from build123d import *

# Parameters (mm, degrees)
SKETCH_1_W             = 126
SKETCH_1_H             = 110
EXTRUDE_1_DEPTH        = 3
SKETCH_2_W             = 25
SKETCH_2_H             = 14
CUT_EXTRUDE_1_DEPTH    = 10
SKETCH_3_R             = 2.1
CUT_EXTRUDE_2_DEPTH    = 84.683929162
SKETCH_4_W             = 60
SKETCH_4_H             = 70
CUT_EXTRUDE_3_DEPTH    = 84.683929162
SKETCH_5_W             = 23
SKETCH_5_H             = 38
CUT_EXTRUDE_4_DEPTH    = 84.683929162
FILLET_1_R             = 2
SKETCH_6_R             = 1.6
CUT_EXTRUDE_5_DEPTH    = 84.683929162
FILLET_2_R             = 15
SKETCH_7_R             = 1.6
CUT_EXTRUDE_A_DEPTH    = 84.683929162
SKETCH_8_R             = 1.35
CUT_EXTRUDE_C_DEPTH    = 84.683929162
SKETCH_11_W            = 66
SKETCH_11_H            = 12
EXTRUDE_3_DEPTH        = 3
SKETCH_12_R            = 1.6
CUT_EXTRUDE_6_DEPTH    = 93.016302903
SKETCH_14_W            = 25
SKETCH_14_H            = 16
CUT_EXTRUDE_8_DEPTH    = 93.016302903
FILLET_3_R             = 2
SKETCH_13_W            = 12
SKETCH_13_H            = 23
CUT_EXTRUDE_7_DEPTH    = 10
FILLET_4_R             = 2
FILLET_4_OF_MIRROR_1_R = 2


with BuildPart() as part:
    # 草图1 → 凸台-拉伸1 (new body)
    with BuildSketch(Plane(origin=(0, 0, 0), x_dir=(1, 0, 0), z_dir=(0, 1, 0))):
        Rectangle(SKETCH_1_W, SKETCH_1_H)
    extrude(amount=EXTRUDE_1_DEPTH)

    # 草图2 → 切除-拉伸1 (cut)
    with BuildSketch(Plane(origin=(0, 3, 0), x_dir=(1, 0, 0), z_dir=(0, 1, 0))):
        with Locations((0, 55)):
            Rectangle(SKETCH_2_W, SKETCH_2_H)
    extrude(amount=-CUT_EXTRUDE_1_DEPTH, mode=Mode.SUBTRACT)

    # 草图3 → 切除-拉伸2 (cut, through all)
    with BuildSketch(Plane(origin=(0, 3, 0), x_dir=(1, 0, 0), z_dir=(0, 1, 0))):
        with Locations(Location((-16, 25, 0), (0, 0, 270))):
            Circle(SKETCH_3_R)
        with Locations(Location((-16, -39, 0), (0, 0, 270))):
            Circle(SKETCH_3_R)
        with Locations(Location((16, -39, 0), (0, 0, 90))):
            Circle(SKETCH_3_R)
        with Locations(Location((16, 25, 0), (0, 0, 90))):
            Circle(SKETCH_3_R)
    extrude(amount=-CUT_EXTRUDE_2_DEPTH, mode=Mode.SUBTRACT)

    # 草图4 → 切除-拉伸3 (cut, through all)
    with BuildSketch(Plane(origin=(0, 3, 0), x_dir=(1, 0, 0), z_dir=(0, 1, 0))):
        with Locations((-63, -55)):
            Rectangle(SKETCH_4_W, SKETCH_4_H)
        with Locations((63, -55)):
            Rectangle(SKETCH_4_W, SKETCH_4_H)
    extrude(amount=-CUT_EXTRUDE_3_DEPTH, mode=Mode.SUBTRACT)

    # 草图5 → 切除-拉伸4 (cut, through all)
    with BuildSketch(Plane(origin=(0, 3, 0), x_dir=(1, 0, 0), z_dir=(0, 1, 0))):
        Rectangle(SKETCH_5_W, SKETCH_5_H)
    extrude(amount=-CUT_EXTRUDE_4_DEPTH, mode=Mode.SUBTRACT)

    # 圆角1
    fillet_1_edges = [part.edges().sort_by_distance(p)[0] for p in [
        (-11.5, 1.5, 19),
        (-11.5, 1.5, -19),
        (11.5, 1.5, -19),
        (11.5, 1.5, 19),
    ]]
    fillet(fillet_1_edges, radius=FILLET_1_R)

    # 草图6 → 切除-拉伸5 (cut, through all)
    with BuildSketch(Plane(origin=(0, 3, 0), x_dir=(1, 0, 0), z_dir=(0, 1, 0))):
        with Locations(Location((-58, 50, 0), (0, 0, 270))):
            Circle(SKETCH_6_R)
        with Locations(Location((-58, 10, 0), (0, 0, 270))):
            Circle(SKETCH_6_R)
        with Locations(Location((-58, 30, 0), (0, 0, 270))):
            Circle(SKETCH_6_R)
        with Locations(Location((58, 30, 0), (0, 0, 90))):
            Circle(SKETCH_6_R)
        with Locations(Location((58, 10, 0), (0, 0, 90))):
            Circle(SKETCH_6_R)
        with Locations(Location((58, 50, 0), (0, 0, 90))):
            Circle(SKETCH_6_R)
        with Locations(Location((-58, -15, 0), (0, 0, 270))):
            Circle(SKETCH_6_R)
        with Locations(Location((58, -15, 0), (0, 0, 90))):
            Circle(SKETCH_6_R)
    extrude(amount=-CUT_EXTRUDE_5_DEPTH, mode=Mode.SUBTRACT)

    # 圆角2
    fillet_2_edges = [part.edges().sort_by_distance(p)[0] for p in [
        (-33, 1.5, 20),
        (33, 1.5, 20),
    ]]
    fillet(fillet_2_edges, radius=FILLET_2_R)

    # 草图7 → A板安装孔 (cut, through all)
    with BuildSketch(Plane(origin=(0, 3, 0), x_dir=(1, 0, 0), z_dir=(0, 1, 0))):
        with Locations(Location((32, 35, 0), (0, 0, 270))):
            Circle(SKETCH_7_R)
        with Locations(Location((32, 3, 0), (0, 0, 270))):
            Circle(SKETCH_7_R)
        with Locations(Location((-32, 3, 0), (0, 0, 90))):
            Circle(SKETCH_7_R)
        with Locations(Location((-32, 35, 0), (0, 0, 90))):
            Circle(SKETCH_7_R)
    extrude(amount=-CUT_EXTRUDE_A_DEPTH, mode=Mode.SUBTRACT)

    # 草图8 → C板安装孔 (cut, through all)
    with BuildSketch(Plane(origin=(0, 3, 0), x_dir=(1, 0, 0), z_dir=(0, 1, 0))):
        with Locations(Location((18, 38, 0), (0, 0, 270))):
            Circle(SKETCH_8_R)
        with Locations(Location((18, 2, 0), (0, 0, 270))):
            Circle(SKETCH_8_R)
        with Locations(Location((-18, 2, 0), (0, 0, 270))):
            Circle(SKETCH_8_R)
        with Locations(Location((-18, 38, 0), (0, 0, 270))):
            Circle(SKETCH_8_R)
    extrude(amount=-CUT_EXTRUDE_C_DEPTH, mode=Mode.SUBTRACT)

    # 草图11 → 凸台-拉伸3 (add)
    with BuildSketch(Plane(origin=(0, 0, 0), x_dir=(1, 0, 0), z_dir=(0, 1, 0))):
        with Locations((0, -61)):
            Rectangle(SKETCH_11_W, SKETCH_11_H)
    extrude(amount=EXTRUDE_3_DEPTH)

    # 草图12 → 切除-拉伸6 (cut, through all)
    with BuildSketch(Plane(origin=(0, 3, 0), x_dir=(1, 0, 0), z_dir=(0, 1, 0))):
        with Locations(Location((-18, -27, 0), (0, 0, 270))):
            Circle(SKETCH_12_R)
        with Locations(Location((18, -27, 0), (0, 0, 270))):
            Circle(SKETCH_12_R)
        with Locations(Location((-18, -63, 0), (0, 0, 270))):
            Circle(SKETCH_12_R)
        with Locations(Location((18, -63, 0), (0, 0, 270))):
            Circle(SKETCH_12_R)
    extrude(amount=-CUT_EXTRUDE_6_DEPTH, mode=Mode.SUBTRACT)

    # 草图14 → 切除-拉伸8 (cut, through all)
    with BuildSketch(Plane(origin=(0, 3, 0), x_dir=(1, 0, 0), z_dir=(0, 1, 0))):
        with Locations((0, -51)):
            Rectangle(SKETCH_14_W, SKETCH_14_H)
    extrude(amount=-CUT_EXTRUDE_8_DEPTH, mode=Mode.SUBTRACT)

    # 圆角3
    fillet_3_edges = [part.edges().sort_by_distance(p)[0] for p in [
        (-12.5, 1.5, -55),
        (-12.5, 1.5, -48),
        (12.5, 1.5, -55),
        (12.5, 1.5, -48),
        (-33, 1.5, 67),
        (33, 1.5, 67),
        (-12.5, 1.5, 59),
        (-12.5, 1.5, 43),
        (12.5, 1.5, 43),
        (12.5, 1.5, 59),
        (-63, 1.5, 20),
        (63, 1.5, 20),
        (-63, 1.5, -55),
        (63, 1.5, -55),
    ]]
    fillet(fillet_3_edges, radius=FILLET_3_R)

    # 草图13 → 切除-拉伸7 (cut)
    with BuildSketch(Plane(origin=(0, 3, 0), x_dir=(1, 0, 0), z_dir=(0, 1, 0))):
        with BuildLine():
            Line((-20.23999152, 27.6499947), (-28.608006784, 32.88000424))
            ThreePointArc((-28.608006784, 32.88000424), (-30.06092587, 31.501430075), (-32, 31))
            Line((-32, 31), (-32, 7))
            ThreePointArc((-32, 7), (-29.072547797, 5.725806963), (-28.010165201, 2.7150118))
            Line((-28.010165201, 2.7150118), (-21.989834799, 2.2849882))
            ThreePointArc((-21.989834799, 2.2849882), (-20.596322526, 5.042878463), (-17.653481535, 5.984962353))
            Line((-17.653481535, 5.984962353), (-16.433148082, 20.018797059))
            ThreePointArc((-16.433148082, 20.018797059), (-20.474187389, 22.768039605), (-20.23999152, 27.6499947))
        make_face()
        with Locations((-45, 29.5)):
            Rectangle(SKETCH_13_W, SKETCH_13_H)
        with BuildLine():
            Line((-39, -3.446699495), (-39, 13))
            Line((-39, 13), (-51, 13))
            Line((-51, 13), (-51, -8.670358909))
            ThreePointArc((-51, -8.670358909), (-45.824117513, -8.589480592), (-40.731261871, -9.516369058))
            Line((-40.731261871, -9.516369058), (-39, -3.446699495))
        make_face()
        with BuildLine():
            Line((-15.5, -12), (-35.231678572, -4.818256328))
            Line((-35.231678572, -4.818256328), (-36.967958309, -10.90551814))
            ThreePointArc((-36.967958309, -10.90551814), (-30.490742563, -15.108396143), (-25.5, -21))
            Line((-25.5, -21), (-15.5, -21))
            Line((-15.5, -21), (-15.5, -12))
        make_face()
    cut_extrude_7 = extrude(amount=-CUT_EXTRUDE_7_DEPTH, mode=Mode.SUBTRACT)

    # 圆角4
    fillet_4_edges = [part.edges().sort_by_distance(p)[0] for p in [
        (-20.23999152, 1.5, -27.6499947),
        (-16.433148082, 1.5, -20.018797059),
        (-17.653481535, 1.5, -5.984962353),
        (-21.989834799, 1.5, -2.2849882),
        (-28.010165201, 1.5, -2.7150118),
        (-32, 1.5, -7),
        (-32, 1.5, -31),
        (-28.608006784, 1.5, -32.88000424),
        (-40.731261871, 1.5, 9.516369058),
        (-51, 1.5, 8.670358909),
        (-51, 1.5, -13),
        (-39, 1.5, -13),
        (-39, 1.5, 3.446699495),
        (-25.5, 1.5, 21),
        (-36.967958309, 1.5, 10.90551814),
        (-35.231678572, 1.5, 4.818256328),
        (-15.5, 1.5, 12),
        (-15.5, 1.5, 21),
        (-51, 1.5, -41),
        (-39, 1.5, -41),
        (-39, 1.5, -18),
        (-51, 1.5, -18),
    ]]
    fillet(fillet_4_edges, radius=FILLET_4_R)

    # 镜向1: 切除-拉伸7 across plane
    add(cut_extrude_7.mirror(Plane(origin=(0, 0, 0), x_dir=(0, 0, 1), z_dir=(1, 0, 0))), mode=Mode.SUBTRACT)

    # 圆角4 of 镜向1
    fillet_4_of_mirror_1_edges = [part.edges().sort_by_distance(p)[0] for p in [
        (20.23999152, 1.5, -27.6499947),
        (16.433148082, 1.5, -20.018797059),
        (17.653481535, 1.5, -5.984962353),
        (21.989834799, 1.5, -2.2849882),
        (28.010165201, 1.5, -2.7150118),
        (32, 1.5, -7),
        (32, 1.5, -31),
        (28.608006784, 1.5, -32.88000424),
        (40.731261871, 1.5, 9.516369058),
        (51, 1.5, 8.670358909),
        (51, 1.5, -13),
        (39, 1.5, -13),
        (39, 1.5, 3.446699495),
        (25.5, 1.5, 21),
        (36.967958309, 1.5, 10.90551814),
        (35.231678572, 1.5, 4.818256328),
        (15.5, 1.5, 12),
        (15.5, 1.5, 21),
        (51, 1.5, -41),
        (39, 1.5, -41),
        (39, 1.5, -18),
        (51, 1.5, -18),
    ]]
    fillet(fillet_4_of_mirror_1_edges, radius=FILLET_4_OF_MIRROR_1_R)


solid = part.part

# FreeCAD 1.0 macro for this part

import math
import FreeCAD as App
import Part
import Sketcher
Q = App.Units.Quantity


def edges_at(feature, points):
    """Names of the edges that pass closest to the given points."""
    edges = feature.Shape.Edges
    near = lambda p: min(range(len(edges)), key=lambda i: edges[i].distToShape(Part.Vertex(*p))[0])
    return sorted({f"Edge{near(p) + 1}" for p in points})

doc = App.newDocument("Part")
params = doc.addObject("Spreadsheet::Sheet", "Params")
for row, (alias, value) in enumerate([
    ("sketch1_width", "126 mm"),
    ("sketch1_height", "110 mm"),
    ("pad1_length", "3 mm"),
    ("sketch2_width", "25 mm"),
    ("sketch2_height", "14 mm"),
    ("pocket1_length", "10 mm"),
    ("sketch3_diameter", "4.2 mm"),
    ("sketch4_width", "60 mm"),
    ("sketch4_height", "70 mm"),
    ("sketch5_width", "23 mm"),
    ("sketch5_height", "38 mm"),
    ("fillet_radius", "2 mm"),
    ("sketch6_diameter", "3.2 mm"),
    ("fillet2_radius", "15 mm"),
    ("sketch7_diameter", "3.2 mm"),
    ("sketch8_diameter", "2.7 mm"),
    ("sketch9_width", "66 mm"),
    ("sketch9_height", "12 mm"),
    ("pad2_length", "3 mm"),
    ("sketch10_diameter", "3.2 mm"),
    ("sketch11_width", "25 mm"),
    ("sketch11_height", "16 mm"),
    ("fillet3_radius", "2 mm"),
    ("sketch12_radius", "4 mm"),
    ("sketch12_radius2", "5 mm"),
    ("sketch12_radius3", "26.5 mm"),
    ("sketch12_width", "12 mm"),
    ("sketch12_width2", "10 mm"),
    ("pocket10_length", "10 mm"),
    ("fillet4_radius", "2 mm"),
    ("fillet5_radius", "2 mm"),
], start=1):
    params.set(f"A{row}", alias)
    params.set(f"B{row}", "=" + value)
    params.setAlias(f"B{row}", alias)

body = doc.addObject("PartDesign::Body", "Body")

# Sketch on XZ plane
sketch1 = doc.addObject("Sketcher::SketchObject", "Sketch")
body.addObject(sketch1)
sketch1.AttachmentSupport = (doc.XZ_Plane, [""])
sketch1.MapMode = "FlatFace"
sketch1.addGeometry([
    Part.LineSegment(App.Vector(-63, -55, 0), App.Vector(-63, 55, 0)),
    Part.LineSegment(App.Vector(-63, 55, 0), App.Vector(63, 55, 0)),
    Part.LineSegment(App.Vector(63, 55, 0), App.Vector(63, -55, 0)),
    Part.LineSegment(App.Vector(63, -55, 0), App.Vector(-63, -55, 0)),
], False)
sketch1.addConstraint([
    Sketcher.Constraint("Coincident", 0, 2, 1, 1),
    Sketcher.Constraint("Coincident", 1, 2, 2, 1),
    Sketcher.Constraint("Coincident", 2, 2, 3, 1),
    Sketcher.Constraint("Coincident", 3, 2, 0, 1),
    Sketcher.Constraint("Vertical", 0),
    Sketcher.Constraint("Horizontal", 1),
    Sketcher.Constraint("Vertical", 2),
    Sketcher.Constraint("Horizontal", 3),
    Sketcher.Constraint("Symmetric", 0, 2, 2, 2, -1, 1),
    Sketcher.Constraint("DistanceX", 1, 1, 1, 2, 126.0),
    Sketcher.Constraint("DistanceY", 0, 1, 0, 2, 110.0),
])
sketch1.setExpression("Constraints[9]", "Params.sketch1_width")
sketch1.setExpression("Constraints[10]", "Params.sketch1_height")
pad1 = doc.addObject("PartDesign::Pad", "Pad")
body.addObject(pad1)
pad1.Profile = sketch1
pad1.setExpression("Length", "Params.pad1_length")
pad1.Reversed = True

# Sketch on XZ plane
sketch2 = doc.addObject("Sketcher::SketchObject", "Sketch001")
body.addObject(sketch2)
sketch2.AttachmentSupport = (doc.XZ_Plane, [""])
sketch2.MapMode = "FlatFace"
sketch2.AttachmentOffset = App.Placement(App.Vector(0, 0, -3), App.Rotation())
sketch2.addGeometry([
    Part.LineSegment(App.Vector(-12, -62, 0), App.Vector(-12, -48, 0)),
    Part.LineSegment(App.Vector(-12, -48, 0), App.Vector(12, -48, 0)),
    Part.LineSegment(App.Vector(12, -48, 0), App.Vector(12, -62, 0)),
    Part.LineSegment(App.Vector(12, -62, 0), App.Vector(-12, -62, 0)),
], False)
sketch2.addConstraint([
    Sketcher.Constraint("Coincident", 0, 2, 1, 1),
    Sketcher.Constraint("Coincident", 1, 2, 2, 1),
    Sketcher.Constraint("Coincident", 2, 2, 3, 1),
    Sketcher.Constraint("Coincident", 3, 2, 0, 1),
    Sketcher.Constraint("Vertical", 0),
    Sketcher.Constraint("Horizontal", 1),
    Sketcher.Constraint("Vertical", 2),
    Sketcher.Constraint("Horizontal", 3),
    Sketcher.Constraint("DistanceX", 1, 1, 1, 2, 25.0),
    Sketcher.Constraint("DistanceY", 0, 1, 0, 2, 14.0),
    Sketcher.Constraint("DistanceY", 0, 2, -1, 1, 48.0),
    Sketcher.Constraint("DistanceX", 0, 2, -1, 1, 12.5),
])
sketch2.setExpression("Constraints[8]", "Params.sketch2_width")
sketch2.setExpression("Constraints[9]", "Params.sketch2_height")
pocket1 = doc.addObject("PartDesign::Pocket", "Pocket")
body.addObject(pocket1)
pocket1.Profile = sketch2
pocket1.setExpression("Length", "Params.pocket1_length")
pocket1.Reversed = True

# Sketch on XZ plane
sketch3 = doc.addObject("Sketcher::SketchObject", "Sketch002")
body.addObject(sketch3)
sketch3.AttachmentSupport = (doc.XZ_Plane, [""])
sketch3.MapMode = "FlatFace"
sketch3.AttachmentOffset = App.Placement(App.Vector(0, 0, -3), App.Rotation())
sketch3.addGeometry([
    Part.Circle(App.Vector(-16, -25, 0), App.Vector(0, 0, 1), 2.1),
    Part.Circle(App.Vector(-16, 39, 0), App.Vector(0, 0, 1), 2.1),
    Part.Circle(App.Vector(16, 39, 0), App.Vector(0, 0, 1), 2.1),
    Part.Circle(App.Vector(16, -25, 0), App.Vector(0, 0, 1), 2.1),
], False)
sketch3.addConstraint([
    Sketcher.Constraint("Equal", 0, 1),
    Sketcher.Constraint("Equal", 1, 2),
    Sketcher.Constraint("Equal", 2, 3),
    Sketcher.Constraint("Symmetric", 1, 3, 2, 3, -2),
    Sketcher.Constraint("Symmetric", 0, 3, 3, 3, -2),
    Sketcher.Constraint("Vertical", 0, 3, 1, 3),
    Sketcher.Constraint("Diameter", 0, 4.2),
    Sketcher.Constraint("DistanceX", 0, 3, -1, 1, 16.0),
    Sketcher.Constraint("DistanceY", 0, 3, -1, 1, 25.0),
    Sketcher.Constraint("DistanceY", -1, 1, 1, 3, 39.0),
])
sketch3.setExpression("Constraints[6]", "Params.sketch3_diameter")
pocket2 = doc.addObject("PartDesign::Pocket", "Pocket001")
body.addObject(pocket2)
pocket2.Profile = sketch3
pocket2.Type = "ThroughAll"
pocket2.Reversed = True

# Sketch on XZ plane
sketch4 = doc.addObject("Sketcher::SketchObject", "Sketch003")
body.addObject(sketch4)
sketch4.AttachmentSupport = (doc.XZ_Plane, [""])
sketch4.MapMode = "FlatFace"
sketch4.AttachmentOffset = App.Placement(App.Vector(0, 0, -3), App.Rotation())
sketch4.addGeometry([
    Part.LineSegment(App.Vector(-93, 20, 0), App.Vector(-93, 90, 0)),  # 0
    Part.LineSegment(App.Vector(-93, 90, 0), App.Vector(-33, 90, 0)),  # 1
    Part.LineSegment(App.Vector(-33, 90, 0), App.Vector(-33, 20, 0)),  # 2
    Part.LineSegment(App.Vector(-33, 20, 0), App.Vector(-93, 20, 0)),  # 3
    Part.LineSegment(App.Vector(33, 20, 0), App.Vector(33, 90, 0)),  # 4
    Part.LineSegment(App.Vector(33, 90, 0), App.Vector(93, 90, 0)),  # 5
    Part.LineSegment(App.Vector(93, 90, 0), App.Vector(93, 20, 0)),  # 6
    Part.LineSegment(App.Vector(93, 20, 0), App.Vector(33, 20, 0)),  # 7
], False)
sketch4.addConstraint([
    Sketcher.Constraint("Coincident", 0, 2, 1, 1),
    Sketcher.Constraint("Coincident", 1, 2, 2, 1),
    Sketcher.Constraint("Coincident", 2, 2, 3, 1),
    Sketcher.Constraint("Coincident", 3, 2, 0, 1),
    Sketcher.Constraint("Coincident", 4, 2, 5, 1),
    Sketcher.Constraint("Coincident", 5, 2, 6, 1),
    Sketcher.Constraint("Coincident", 6, 2, 7, 1),
    Sketcher.Constraint("Coincident", 7, 2, 4, 1),
    Sketcher.Constraint("Vertical", 0),
    Sketcher.Constraint("Horizontal", 1),
    Sketcher.Constraint("Vertical", 2),
    Sketcher.Constraint("Horizontal", 3),
    Sketcher.Constraint("Vertical", 4),
    Sketcher.Constraint("Horizontal", 5),
    Sketcher.Constraint("Vertical", 6),
    Sketcher.Constraint("Horizontal", 7),
    Sketcher.Constraint("Symmetric", 1, 2, 4, 2, -2),
    Sketcher.Constraint("Symmetric", 3, 2, 6, 2, -2),
    Sketcher.Constraint("DistanceX", 1, 1, 1, 2, 60.0),
    Sketcher.Constraint("DistanceY", 0, 1, 0, 2, 70.0),
    Sketcher.Constraint("DistanceX", 0, 2, -1, 1, 93.0),
    Sketcher.Constraint("DistanceY", -1, 1, 0, 2, 90.0),
])
sketch4.setExpression("Constraints[18]", "Params.sketch4_width")
sketch4.setExpression("Constraints[19]", "Params.sketch4_height")
pocket3 = doc.addObject("PartDesign::Pocket", "Pocket002")
body.addObject(pocket3)
pocket3.Profile = sketch4
pocket3.Type = "ThroughAll"
pocket3.Reversed = True

# Sketch on XZ plane
sketch5 = doc.addObject("Sketcher::SketchObject", "Sketch004")
body.addObject(sketch5)
sketch5.AttachmentSupport = (doc.XZ_Plane, [""])
sketch5.MapMode = "FlatFace"
sketch5.AttachmentOffset = App.Placement(App.Vector(0, 0, -3), App.Rotation())
sketch5.addGeometry([
    Part.LineSegment(App.Vector(-12, -19, 0), App.Vector(-12, 19, 0)),
    Part.LineSegment(App.Vector(-12, 19, 0), App.Vector(12, 19, 0)),
    Part.LineSegment(App.Vector(12, 19, 0), App.Vector(12, -19, 0)),
    Part.LineSegment(App.Vector(12, -19, 0), App.Vector(-12, -19, 0)),
], False)
sketch5.addConstraint([
    Sketcher.Constraint("Coincident", 0, 2, 1, 1),
    Sketcher.Constraint("Coincident", 1, 2, 2, 1),
    Sketcher.Constraint("Coincident", 2, 2, 3, 1),
    Sketcher.Constraint("Coincident", 3, 2, 0, 1),
    Sketcher.Constraint("Vertical", 0),
    Sketcher.Constraint("Horizontal", 1),
    Sketcher.Constraint("Vertical", 2),
    Sketcher.Constraint("Horizontal", 3),
    Sketcher.Constraint("Symmetric", 0, 2, 2, 2, -1, 1),
    Sketcher.Constraint("DistanceX", 1, 1, 1, 2, 23.0),
    Sketcher.Constraint("DistanceY", 0, 1, 0, 2, 38.0),
])
sketch5.setExpression("Constraints[9]", "Params.sketch5_width")
sketch5.setExpression("Constraints[10]", "Params.sketch5_height")
pocket4 = doc.addObject("PartDesign::Pocket", "Pocket003")
body.addObject(pocket4)
pocket4.Profile = sketch5
pocket4.Type = "ThroughAll"
pocket4.Reversed = True
doc.recompute()

fillet = doc.addObject("PartDesign::Fillet", "Fillet")
body.addObject(fillet)
fillet.Base = (pocket4, edges_at(pocket4, [
    (-11.5, 1.5, 19),
    (-11.5, 1.5, -19),
    (11.5, 1.5, -19),
    (11.5, 1.5, 19),
]))
fillet.setExpression("Radius", "Params.fillet_radius")

# Sketch on XZ plane
sketch6 = doc.addObject("Sketcher::SketchObject", "Sketch005")
body.addObject(sketch6)
sketch6.AttachmentSupport = (doc.XZ_Plane, [""])
sketch6.MapMode = "FlatFace"
sketch6.AttachmentOffset = App.Placement(App.Vector(0, 0, -3), App.Rotation())
sketch6.addGeometry([
    Part.Circle(App.Vector(-58, -50, 0), App.Vector(0, 0, 1), 1.6),  # 0
    Part.Circle(App.Vector(-58, -10, 0), App.Vector(0, 0, 1), 1.6),  # 1
    Part.Circle(App.Vector(-58, -30, 0), App.Vector(0, 0, 1), 1.6),  # 2
    Part.Circle(App.Vector(58, -30, 0), App.Vector(0, 0, 1), 1.6),  # 3
    Part.Circle(App.Vector(58, -10, 0), App.Vector(0, 0, 1), 1.6),  # 4
    Part.Circle(App.Vector(58, -50, 0), App.Vector(0, 0, 1), 1.6),  # 5
    Part.Circle(App.Vector(-58, 15, 0), App.Vector(0, 0, 1), 1.6),  # 6
    Part.Circle(App.Vector(58, 15, 0), App.Vector(0, 0, 1), 1.6),  # 7
], False)
sketch6.addConstraint([
    Sketcher.Constraint("Equal", 0, 1),
    Sketcher.Constraint("Equal", 1, 2),
    Sketcher.Constraint("Equal", 2, 3),
    Sketcher.Constraint("Equal", 3, 4),
    Sketcher.Constraint("Equal", 4, 5),
    Sketcher.Constraint("Equal", 5, 6),
    Sketcher.Constraint("Equal", 6, 7),
    Sketcher.Constraint("Symmetric", 2, 3, 3, 3, -2),
    Sketcher.Constraint("Symmetric", 1, 3, 4, 3, -2),
    Sketcher.Constraint("Symmetric", 0, 3, 5, 3, -2),
    Sketcher.Constraint("Symmetric", 6, 3, 7, 3, -2),
    Sketcher.Constraint("Vertical", 0, 3, 1, 3),
    Sketcher.Constraint("Vertical", 1, 3, 2, 3),
    Sketcher.Constraint("Vertical", 2, 3, 6, 3),
    Sketcher.Constraint("Diameter", 0, 3.2),
    Sketcher.Constraint("DistanceX", 0, 3, -1, 1, 58.0),
    Sketcher.Constraint("DistanceY", 0, 3, -1, 1, 50.0),
    Sketcher.Constraint("DistanceY", 1, 3, -1, 1, 10.0),
    Sketcher.Constraint("DistanceY", 2, 3, -1, 1, 30.0),
    Sketcher.Constraint("DistanceY", -1, 1, 6, 3, 15.0),
])
sketch6.setExpression("Constraints[14]", "Params.sketch6_diameter")
pocket5 = doc.addObject("PartDesign::Pocket", "Pocket004")
body.addObject(pocket5)
pocket5.Profile = sketch6
pocket5.Type = "ThroughAll"
pocket5.Reversed = True
doc.recompute()

fillet2 = doc.addObject("PartDesign::Fillet", "Fillet001")
body.addObject(fillet2)
fillet2.Base = (pocket5, edges_at(pocket5, [(-33, 1.5, 20), (33, 1.5, 20)]))
fillet2.setExpression("Radius", "Params.fillet2_radius")

# Sketch on XZ plane
sketch7 = doc.addObject("Sketcher::SketchObject", "Sketch006")
body.addObject(sketch7)
sketch7.AttachmentSupport = (doc.XZ_Plane, [""])
sketch7.MapMode = "FlatFace"
sketch7.AttachmentOffset = App.Placement(App.Vector(0, 0, -3), App.Rotation())
sketch7.addGeometry([
    Part.Circle(App.Vector(32, -35, 0), App.Vector(0, 0, 1), 1.6),
    Part.Circle(App.Vector(32, -3, 0), App.Vector(0, 0, 1), 1.6),
    Part.Circle(App.Vector(-32, -3, 0), App.Vector(0, 0, 1), 1.6),
    Part.Circle(App.Vector(-32, -35, 0), App.Vector(0, 0, 1), 1.6),
], False)
sketch7.addConstraint([
    Sketcher.Constraint("Equal", 0, 1),
    Sketcher.Constraint("Equal", 1, 2),
    Sketcher.Constraint("Equal", 2, 3),
    Sketcher.Constraint("Symmetric", 1, 3, 2, 3, -2),
    Sketcher.Constraint("Symmetric", 0, 3, 3, 3, -2),
    Sketcher.Constraint("Vertical", 0, 3, 1, 3),
    Sketcher.Constraint("Diameter", 0, 3.2),
    Sketcher.Constraint("DistanceX", -1, 1, 0, 3, 32.0),
    Sketcher.Constraint("DistanceY", 0, 3, -1, 1, 35.0),
    Sketcher.Constraint("DistanceY", 1, 3, -1, 1, 3.0),
])
sketch7.setExpression("Constraints[6]", "Params.sketch7_diameter")
pocket6 = doc.addObject("PartDesign::Pocket", "Pocket005")
body.addObject(pocket6)
pocket6.Profile = sketch7
pocket6.Type = "ThroughAll"
pocket6.Reversed = True

# Sketch on XZ plane
sketch8 = doc.addObject("Sketcher::SketchObject", "Sketch007")
body.addObject(sketch8)
sketch8.AttachmentSupport = (doc.XZ_Plane, [""])
sketch8.MapMode = "FlatFace"
sketch8.AttachmentOffset = App.Placement(App.Vector(0, 0, -3), App.Rotation())
sketch8.addGeometry([
    Part.Circle(App.Vector(18, -38, 0), App.Vector(0, 0, 1), 1.4),
    Part.Circle(App.Vector(18, -2, 0), App.Vector(0, 0, 1), 1.4),
    Part.Circle(App.Vector(-18, -2, 0), App.Vector(0, 0, 1), 1.4),
    Part.Circle(App.Vector(-18, -38, 0), App.Vector(0, 0, 1), 1.4),
], False)
sketch8.addConstraint([
    Sketcher.Constraint("Equal", 0, 1),
    Sketcher.Constraint("Equal", 1, 2),
    Sketcher.Constraint("Equal", 2, 3),
    Sketcher.Constraint("Symmetric", 1, 3, 2, 3, -2),
    Sketcher.Constraint("Symmetric", 0, 3, 3, 3, -2),
    Sketcher.Constraint("Vertical", 0, 3, 1, 3),
    Sketcher.Constraint("Diameter", 0, 2.7),
    Sketcher.Constraint("DistanceX", -1, 1, 0, 3, 18.0),
    Sketcher.Constraint("DistanceY", 0, 3, -1, 1, 38.0),
    Sketcher.Constraint("DistanceY", 1, 3, -1, 1, 2.0),
])
sketch8.setExpression("Constraints[6]", "Params.sketch8_diameter")
pocket7 = doc.addObject("PartDesign::Pocket", "Pocket006")
body.addObject(pocket7)
pocket7.Profile = sketch8
pocket7.Type = "ThroughAll"
pocket7.Reversed = True

# Sketch on XZ plane
sketch9 = doc.addObject("Sketcher::SketchObject", "Sketch008")
body.addObject(sketch9)
sketch9.AttachmentSupport = (doc.XZ_Plane, [""])
sketch9.MapMode = "FlatFace"
sketch9.addGeometry([
    Part.LineSegment(App.Vector(-33, 55, 0), App.Vector(-33, 67, 0)),
    Part.LineSegment(App.Vector(-33, 67, 0), App.Vector(33, 67, 0)),
    Part.LineSegment(App.Vector(33, 67, 0), App.Vector(33, 55, 0)),
    Part.LineSegment(App.Vector(33, 55, 0), App.Vector(-33, 55, 0)),
], False)
sketch9.addConstraint([
    Sketcher.Constraint("Coincident", 0, 2, 1, 1),
    Sketcher.Constraint("Coincident", 1, 2, 2, 1),
    Sketcher.Constraint("Coincident", 2, 2, 3, 1),
    Sketcher.Constraint("Coincident", 3, 2, 0, 1),
    Sketcher.Constraint("Vertical", 0),
    Sketcher.Constraint("Horizontal", 1),
    Sketcher.Constraint("Vertical", 2),
    Sketcher.Constraint("Horizontal", 3),
    Sketcher.Constraint("DistanceX", 1, 1, 1, 2, 66.0),
    Sketcher.Constraint("DistanceY", 0, 1, 0, 2, 12.0),
    Sketcher.Constraint("DistanceX", 0, 2, -1, 1, 33.0),
    Sketcher.Constraint("DistanceY", -1, 1, 0, 2, 67.0),
])
sketch9.setExpression("Constraints[8]", "Params.sketch9_width")
sketch9.setExpression("Constraints[9]", "Params.sketch9_height")
pad2 = doc.addObject("PartDesign::Pad", "Pad001")
body.addObject(pad2)
pad2.Profile = sketch9
pad2.setExpression("Length", "Params.pad2_length")
pad2.Reversed = True

# Sketch on XZ plane
sketch10 = doc.addObject("Sketcher::SketchObject", "Sketch009")
body.addObject(sketch10)
sketch10.AttachmentSupport = (doc.XZ_Plane, [""])
sketch10.MapMode = "FlatFace"
sketch10.AttachmentOffset = App.Placement(App.Vector(0, 0, -3), App.Rotation())
sketch10.addGeometry([
    Part.Circle(App.Vector(-18, 27, 0), App.Vector(0, 0, 1), 1.6),
    Part.Circle(App.Vector(18, 27, 0), App.Vector(0, 0, 1), 1.6),
    Part.Circle(App.Vector(-18, 63, 0), App.Vector(0, 0, 1), 1.6),
    Part.Circle(App.Vector(18, 63, 0), App.Vector(0, 0, 1), 1.6),
], False)
sketch10.addConstraint([
    Sketcher.Constraint("Equal", 0, 1),
    Sketcher.Constraint("Equal", 1, 2),
    Sketcher.Constraint("Equal", 2, 3),
    Sketcher.Constraint("Symmetric", 0, 3, 1, 3, -2),
    Sketcher.Constraint("Symmetric", 2, 3, 3, 3, -2),
    Sketcher.Constraint("Vertical", 0, 3, 2, 3),
    Sketcher.Constraint("Diameter", 0, 3.2),
    Sketcher.Constraint("DistanceX", 0, 3, -1, 1, 18.0),
    Sketcher.Constraint("DistanceY", -1, 1, 0, 3, 27.0),
    Sketcher.Constraint("DistanceY", -1, 1, 2, 3, 63.0),
])
sketch10.setExpression("Constraints[6]", "Params.sketch10_diameter")
pocket8 = doc.addObject("PartDesign::Pocket", "Pocket007")
body.addObject(pocket8)
pocket8.Profile = sketch10
pocket8.Type = "ThroughAll"
pocket8.Reversed = True

# Sketch on XZ plane
sketch11 = doc.addObject("Sketcher::SketchObject", "Sketch010")
body.addObject(sketch11)
sketch11.AttachmentSupport = (doc.XZ_Plane, [""])
sketch11.MapMode = "FlatFace"
sketch11.AttachmentOffset = App.Placement(App.Vector(0, 0, -3), App.Rotation())
sketch11.addGeometry([
    Part.LineSegment(App.Vector(-12, 43, 0), App.Vector(-12, 59, 0)),
    Part.LineSegment(App.Vector(-12, 59, 0), App.Vector(12, 59, 0)),
    Part.LineSegment(App.Vector(12, 59, 0), App.Vector(12, 43, 0)),
    Part.LineSegment(App.Vector(12, 43, 0), App.Vector(-12, 43, 0)),
], False)
sketch11.addConstraint([
    Sketcher.Constraint("Coincident", 0, 2, 1, 1),
    Sketcher.Constraint("Coincident", 1, 2, 2, 1),
    Sketcher.Constraint("Coincident", 2, 2, 3, 1),
    Sketcher.Constraint("Coincident", 3, 2, 0, 1),
    Sketcher.Constraint("Vertical", 0),
    Sketcher.Constraint("Horizontal", 1),
    Sketcher.Constraint("Vertical", 2),
    Sketcher.Constraint("Horizontal", 3),
    Sketcher.Constraint("DistanceX", 1, 1, 1, 2, 25.0),
    Sketcher.Constraint("DistanceY", 0, 1, 0, 2, 16.0),
    Sketcher.Constraint("DistanceY", -1, 1, 0, 2, 59.0),
    Sketcher.Constraint("DistanceX", 0, 2, -1, 1, 12.5),
])
sketch11.setExpression("Constraints[8]", "Params.sketch11_width")
sketch11.setExpression("Constraints[9]", "Params.sketch11_height")
pocket9 = doc.addObject("PartDesign::Pocket", "Pocket008")
body.addObject(pocket9)
pocket9.Profile = sketch11
pocket9.Type = "ThroughAll"
pocket9.Reversed = True
doc.recompute()

fillet3 = doc.addObject("PartDesign::Fillet", "Fillet002")
body.addObject(fillet3)
fillet3.Base = (pocket9, edges_at(pocket9, [
    (-12.5, 1.5, -55),
    (-12.5, 1.5, -48),
    (12.5, 1.5, -55),
    (12.5, 1.5, -48),
    (-33, 1.5, 67),
    (33, 1.5, 67),
    (-12.5, 1.5, 59),
    (-12.5, 1.5, 43),
    (12.5, 1.5, 43),
    (12.5, 1.5, 59),
    (-63, 1.5, 20),
    (63, 1.5, 20),
    (-63, 1.5, -55),
    (63, 1.5, -55),
]))
fillet3.setExpression("Radius", "Params.fillet3_radius")

# Sketch on XZ plane
sketch12 = doc.addObject("Sketcher::SketchObject", "Sketch011")
body.addObject(sketch12)
sketch12.AttachmentSupport = (doc.XZ_Plane, [""])
sketch12.MapMode = "FlatFace"
sketch12.AttachmentOffset = App.Placement(App.Vector(0, 0, -3), App.Rotation())
sketch12.addGeometry([
    Part.LineSegment(App.Vector(-20.2, -27.6, 0), App.Vector(-28.6, -32.9, 0)),  # 0
    Part.ArcOfCircle(Part.Circle(App.Vector(-32, -35, 0), App.Vector(0, 0, 1), 4), math.radians(32), math.radians(90)),  # 1
    Part.LineSegment(App.Vector(-32, -31, 0), App.Vector(-32, -7, 0)),  # 2
    Part.ArcOfCircle(Part.Circle(App.Vector(-32, -3, 0), App.Vector(0, 0, 1), 4), math.radians(-90), math.radians(4)),  # 3
    Part.LineSegment(App.Vector(-28, -2.7, 0), App.Vector(-22, -2.3, 0)),  # 4
    Part.ArcOfCircle(Part.Circle(App.Vector(-18, -2, 0), App.Vector(0, 0, 1), 4), math.radians(-176), math.radians(-85)),  # 5
    Part.LineSegment(App.Vector(-17.7, -6, 0), App.Vector(-16.4, -20, 0)),  # 6
    Part.ArcOfCircle(Part.Circle(App.Vector(-16, -25, 0), App.Vector(0, 0, 1), 5), math.radians(95), math.radians(212)),  # 7
    Part.LineSegment(App.Vector(-51, -41, 0), App.Vector(-51, -18, 0)),  # 8
    Part.LineSegment(App.Vector(-51, -18, 0), App.Vector(-39, -18, 0)),  # 9
    Part.LineSegment(App.Vector(-39, -18, 0), App.Vector(-39, -41, 0)),  # 10
    Part.LineSegment(App.Vector(-39, -41, 0), App.Vector(-51, -41, 0)),  # 11
    Part.LineSegment(App.Vector(-39, 3.4, 0), App.Vector(-39, -13, 0)),  # 12
    Part.LineSegment(App.Vector(-39, -13, 0), App.Vector(-51, -13, 0)),  # 13
    Part.LineSegment(App.Vector(-51, -13, 0), App.Vector(-51, 8.7, 0)),  # 14
    Part.ArcOfCircle(Part.Circle(App.Vector(-48, 35, 0), App.Vector(0, 0, 1), 26.5), math.radians(-97), math.radians(-74)),  # 15
    Part.LineSegment(App.Vector(-40.7, 9.5, 0), App.Vector(-39, 3.4, 0)),  # 16
    Part.LineSegment(App.Vector(-15.5, 12, 0), App.Vector(-35.2, 4.8, 0)),  # 17
    Part.LineSegment(App.Vector(-35.2, 4.8, 0), App.Vector(-37, 10.9, 0)),  # 18
    Part.ArcOfCircle(Part.Circle(App.Vector(-48, 35, 0), App.Vector(0, 0, 1), 26.5), math.radians(-65), math.radians(-32)),  # 19
    Part.LineSegment(App.Vector(-25.5, 21, 0), App.Vector(-15.5, 21, 0)),  # 20
    Part.LineSegment(App.Vector(-15.5, 21, 0), App.Vector(-15.5, 12, 0)),  # 21
], False)
sketch12.addConstraint([
    Sketcher.Constraint("Coincident", 0, 2, 1, 1),
    Sketcher.Constraint("Coincident", 1, 2, 2, 1),
    Sketcher.Constraint("Coincident", 2, 2, 3, 1),
    Sketcher.Constraint("Coincident", 3, 2, 4, 1),
    Sketcher.Constraint("Coincident", 4, 2, 5, 1),
    Sketcher.Constraint("Coincident", 5, 2, 6, 1),
    Sketcher.Constraint("Coincident", 6, 2, 7, 1),
    Sketcher.Constraint("Coincident", 7, 2, 0, 1),
    Sketcher.Constraint("Coincident", 8, 2, 9, 1),
    Sketcher.Constraint("Coincident", 9, 2, 10, 1),
    Sketcher.Constraint("Coincident", 10, 2, 11, 1),
    Sketcher.Constraint("Coincident", 11, 2, 8, 1),
    Sketcher.Constraint("Coincident", 12, 2, 13, 1),
    Sketcher.Constraint("Coincident", 13, 2, 14, 1),
    Sketcher.Constraint("Coincident", 14, 2, 15, 1),
    Sketcher.Constraint("Coincident", 15, 2, 16, 1),
    Sketcher.Constraint("Coincident", 16, 2, 12, 1),
    Sketcher.Constraint("Coincident", 17, 2, 18, 1),
    Sketcher.Constraint("Coincident", 18, 2, 19, 1),
    Sketcher.Constraint("Coincident", 19, 2, 20, 1),
    Sketcher.Constraint("Coincident", 20, 2, 21, 1),
    Sketcher.Constraint("Coincident", 21, 2, 17, 1),
    Sketcher.Constraint("Vertical", 2),
    Sketcher.Constraint("Vertical", 8),
    Sketcher.Constraint("Horizontal", 9),
    Sketcher.Constraint("Vertical", 10),
    Sketcher.Constraint("Horizontal", 11),
    Sketcher.Constraint("Vertical", 12),
    Sketcher.Constraint("Horizontal", 13),
    Sketcher.Constraint("Vertical", 14),
    Sketcher.Constraint("Horizontal", 20),
    Sketcher.Constraint("Vertical", 21),
    Sketcher.Constraint("Coincident", 19, 3, 15, 3),
    Sketcher.Constraint("Equal", 1, 3),
    Sketcher.Constraint("Equal", 3, 5),
    Sketcher.Constraint("Equal", 15, 19),
    Sketcher.Constraint("Parallel", 16, 18),
    Sketcher.Constraint("Vertical", 1, 3, 3, 3),
    Sketcher.Constraint("Vertical", 3, 3, 1, 2),
    Sketcher.Constraint("Vertical", 10, 2, 12, 2),
    Sketcher.Constraint("Vertical", 11, 2, 13, 2),
    Sketcher.Constraint("Radius", 1, 4.0),
    Sketcher.Constraint("Radius", 7, 5.0),
    Sketcher.Constraint("Radius", 15, 26.5),
    Sketcher.Constraint("DistanceX", 9, 1, 9, 2, 12.0),
    Sketcher.Constraint("DistanceX", 20, 1, 20, 2, 10.0),
    Sketcher.Constraint("DistanceY", 2, 1, 2, 2, 24.0),
    Sketcher.Constraint("DistanceY", 8, 1, 8, 2, 23.0),
    Sketcher.Constraint("DistanceY", 21, 2, 21, 1, 9.0),
    Sketcher.Constraint("Angle", 17, Q("-160 deg")),
    Sketcher.Constraint("DistanceX", 1, 3, -1, 1, 32.0),
    Sketcher.Constraint("DistanceY", 1, 3, -1, 1, 35.0),
    Sketcher.Constraint("DistanceX", 5, 3, -1, 1, 18.0),
    Sketcher.Constraint("DistanceY", 5, 3, -1, 1, 2.0),
    Sketcher.Constraint("DistanceX", 7, 3, -1, 1, 16.0),
    Sketcher.Constraint("DistanceY", 7, 3, -1, 1, 25.0),
    Sketcher.Constraint("DistanceX", 15, 3, -1, 1, 48.0),
    Sketcher.Constraint("DistanceY", -1, 1, 15, 3, 35.0),
    Sketcher.Constraint("DistanceX", 8, 2, -1, 1, 51.0),
    Sketcher.Constraint("DistanceY", 8, 2, -1, 1, 18.0),
    Sketcher.Constraint("DistanceY", 12, 2, -1, 1, 13.0),
    Sketcher.Constraint("DistanceY", -1, 1, 19, 2, 21.0),
    Sketcher.Constraint("DistanceY", 12, 2, 12, 1, 16.446699),
    Sketcher.Constraint("Distance", 18, 6.330041),
    Sketcher.Constraint("DistanceY", 3, 2, -1, 1, 2.715012),
    Sketcher.Constraint("DistanceY", 4, 2, -1, 1, 2.284988),
    Sketcher.Constraint("DistanceX", 5, 2, -1, 1, 17.653482),
    Sketcher.Constraint("DistanceX", 6, 2, -1, 1, 16.433148),
    Sketcher.Constraint("DistanceX", 7, 2, -1, 1, 20.239992),
    Sketcher.Constraint("DistanceX", 15, 2, -1, 1, 40.731262),
    Sketcher.Constraint("DistanceX", 0, 2, 6, 2, 12.174859),
])
sketch12.setExpression("Constraints[41]", "Params.sketch12_radius")
sketch12.setExpression("Constraints[42]", "Params.sketch12_radius2")
sketch12.setExpression("Constraints[43]", "Params.sketch12_radius3")
sketch12.setExpression("Constraints[44]", "Params.sketch12_width")
sketch12.setExpression("Constraints[45]", "Params.sketch12_width2")
pocket10 = doc.addObject("PartDesign::Pocket", "Pocket009")
body.addObject(pocket10)
pocket10.Profile = sketch12
pocket10.setExpression("Length", "Params.pocket10_length")
pocket10.Reversed = True
doc.recompute()

fillet4 = doc.addObject("PartDesign::Fillet", "Fillet003")
body.addObject(fillet4)
fillet4.Base = (pocket10, edges_at(pocket10, [
    (-20.24, 1.5, -27.65),
    (-16.433, 1.5, -20.019),
    (-17.653, 1.5, -5.985),
    (-21.99, 1.5, -2.285),
    (-28.01, 1.5, -2.715),
    (-32, 1.5, -7),
    (-32, 1.5, -31),
    (-28.608, 1.5, -32.88),
    (-40.731, 1.5, 9.516),
    (-51, 1.5, 8.67),
    (-51, 1.5, -13),
    (-39, 1.5, -13),
    (-39, 1.5, 3.447),
    (-25.5, 1.5, 21),
    (-36.968, 1.5, 10.906),
    (-35.232, 1.5, 4.818),
    (-15.5, 1.5, 12),
    (-15.5, 1.5, 21),
    (-51, 1.5, -41),
    (-39, 1.5, -41),
    (-39, 1.5, -18),
    (-51, 1.5, -18),
]))
fillet4.setExpression("Radius", "Params.fillet4_radius")
doc.recompute()

mirrored = doc.addObject("PartDesign::Mirrored", "Mirrored")
body.addObject(mirrored)
mirrored.Originals = [pocket10]
mirrored.MirrorPlane = (doc.YZ_Plane, [""])
body.Tip = mirrored
doc.recompute()

fillet5 = doc.addObject("PartDesign::Fillet", "Fillet004")
body.addObject(fillet5)
fillet5.Base = (mirrored, edges_at(mirrored, [
    (20.24, 1.5, -27.65),
    (16.433, 1.5, -20.019),
    (17.653, 1.5, -5.985),
    (21.99, 1.5, -2.285),
    (28.01, 1.5, -2.715),
    (32, 1.5, -7),
    (32, 1.5, -31),
    (28.608, 1.5, -32.88),
    (40.731, 1.5, 9.516),
    (51, 1.5, 8.67),
    (51, 1.5, -13),
    (39, 1.5, -13),
    (39, 1.5, 3.447),
    (25.5, 1.5, 21),
    (36.968, 1.5, 10.906),
    (35.232, 1.5, 4.818),
    (15.5, 1.5, 12),
    (15.5, 1.5, 21),
    (51, 1.5, -41),
    (39, 1.5, -41),
    (39, 1.5, -18),
    (51, 1.5, -18),
]))
fillet5.setExpression("Radius", "Params.fillet5_radius")

doc.recompute()
